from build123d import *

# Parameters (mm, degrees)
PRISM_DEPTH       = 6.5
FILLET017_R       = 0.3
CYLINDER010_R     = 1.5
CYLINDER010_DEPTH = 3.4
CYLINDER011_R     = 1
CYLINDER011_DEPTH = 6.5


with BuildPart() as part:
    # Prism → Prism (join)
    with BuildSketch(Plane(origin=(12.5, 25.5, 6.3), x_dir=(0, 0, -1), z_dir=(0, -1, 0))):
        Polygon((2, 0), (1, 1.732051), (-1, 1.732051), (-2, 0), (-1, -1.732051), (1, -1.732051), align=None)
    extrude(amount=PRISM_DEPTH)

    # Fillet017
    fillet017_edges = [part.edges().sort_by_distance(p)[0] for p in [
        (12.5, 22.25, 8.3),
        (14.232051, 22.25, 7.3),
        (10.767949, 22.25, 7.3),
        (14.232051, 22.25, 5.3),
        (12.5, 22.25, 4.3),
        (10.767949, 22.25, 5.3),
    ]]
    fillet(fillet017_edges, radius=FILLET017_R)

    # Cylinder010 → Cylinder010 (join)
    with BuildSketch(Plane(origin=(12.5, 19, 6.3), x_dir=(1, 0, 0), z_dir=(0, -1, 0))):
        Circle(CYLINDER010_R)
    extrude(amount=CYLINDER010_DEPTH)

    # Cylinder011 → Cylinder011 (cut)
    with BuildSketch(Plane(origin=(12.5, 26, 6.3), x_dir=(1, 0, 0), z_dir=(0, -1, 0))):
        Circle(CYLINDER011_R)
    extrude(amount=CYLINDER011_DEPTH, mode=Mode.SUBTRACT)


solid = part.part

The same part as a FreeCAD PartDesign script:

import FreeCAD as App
import Part
import Sketcher

V = App.Vector
Q = App.Units.Quantity


def edges_at(feature, points):
    """Names of the edges that pass closest to the given points."""
    edges = feature.Shape.Edges
    near = lambda p: min(range(len(edges)), key=lambda i: edges[i].distToShape(Part.Vertex(*p))[0])
    return sorted({f"Edge{near(p) + 1}" for p in points})

doc = App.newDocument("Part")
body = doc.addObject("PartDesign::Body", "Body")

# Sketch on XZ plane
sketch1 = body.newObject("Sketcher::SketchObject", "Sketch")
sketch1.AttachmentSupport = (doc.getObject("XZ_Plane"), [""])
sketch1.MapMode = "FlatFace"
sketch1.AttachmentOffset = App.Placement(V(0, 0, -25.5), App.Rotation())
sketch1.addGeometry([
    Part.LineSegment(V(12.5, 4.3, 0), V(14.2, 5.3, 0)),  # 0
    Part.LineSegment(V(14.2, 5.3, 0), V(14.2, 7.3, 0)),  # 1
    Part.LineSegment(V(14.2, 7.3, 0), V(12.5, 8.3, 0)),  # 2
    Part.LineSegment(V(12.5, 8.3, 0), V(10.8, 7.3, 0)),  # 3
    Part.LineSegment(V(10.8, 7.3, 0), V(10.8, 5.3, 0)),  # 4
    Part.LineSegment(V(10.8, 5.3, 0), V(12.5, 4.3, 0)),  # 5
], False)
sketch1.addConstraint([
    Sketcher.Constraint("Coincident", 0, 2, 1, 1),
    Sketcher.Constraint("Coincident", 1, 2, 2, 1),
    Sketcher.Constraint("Coincident", 2, 2, 3, 1),
    Sketcher.Constraint("Coincident", 3, 2, 4, 1),
    Sketcher.Constraint("Coincident", 4, 2, 5, 1),
    Sketcher.Constraint("Coincident", 5, 2, 0, 1),
    Sketcher.Constraint("Vertical", 1),
    Sketcher.Constraint("Vertical", 4),
    Sketcher.Constraint("Parallel", 0, 3),
    Sketcher.Constraint("Parallel", 2, 5),
    Sketcher.Constraint("Horizontal", 1, 2, 3, 2),
    Sketcher.Constraint("Horizontal", 0, 2, 4, 2),
    Sketcher.Constraint("Vertical", 2, 2, 5, 2),
    Sketcher.Constraint("DistanceY", 1, 1, 1, 2, Q("2 mm")),
    Sketcher.Constraint("Angle", 0, Q("29.999997 deg")),
    Sketcher.Constraint("Distance", 0, Q("2 mm")),
    Sketcher.Constraint("DistanceY", -1, 1, 0, 2, Q("5.3 mm")),
    Sketcher.Constraint("DistanceX", -1, 1, 2, 2, Q("12.5 mm")),
])
pad1 = body.newObject("PartDesign::Pad", "Pad")
pad1.Profile = sketch1
pad1.Length = 6.5
doc.recompute()

fillet = body.newObject("PartDesign::Fillet", "Fillet")
fillet.Base = (pad1, edges_at(pad1, [
    (12.5, 22.25, 8.3),
    (14.232, 22.25, 7.3),
    (10.768, 22.25, 7.3),
    (14.232, 22.25, 5.3),
    (12.5, 22.25, 4.3),
    (10.768, 22.25, 5.3),
]))
fillet.Radius = 0.3

# Sketch on XZ plane
sketch2 = body.newObject("Sketcher::SketchObject", "Sketch001")
sketch2.AttachmentSupport = (doc.getObject("XZ_Plane"), [""])
sketch2.MapMode = "FlatFace"
sketch2.AttachmentOffset = App.Placement(V(0, 0, -19), App.Rotation())
sketch2.addGeometry(Part.Circle(V(12.5, 6.3, 0), V(0, 0, 1), 1.5), False)
sketch2.addConstraint([
    Sketcher.Constraint("Diameter", 0, Q("3 mm")),
    Sketcher.Constraint("DistanceX", -1, 1, 0, 3, Q("12.5 mm")),
    Sketcher.Constraint("DistanceY", -1, 1, 0, 3, Q("6.3 mm")),
])
pad2 = body.newObject("PartDesign::Pad", "Pad001")
pad2.Profile = sketch2
pad2.Length = 3.4

# Sketch on XZ plane
sketch3 = body.newObject("Sketcher::SketchObject", "Sketch002")
sketch3.AttachmentSupport = (doc.getObject("XZ_Plane"), [""])
sketch3.MapMode = "FlatFace"
sketch3.AttachmentOffset = App.Placement(V(0, 0, -26), App.Rotation())
sketch3.addGeometry(Part.Circle(V(12.5, 6.3, 0), V(0, 0, 1), 1), False)
sketch3.addConstraint([
    Sketcher.Constraint("Diameter", 0, Q("2 mm")),
    Sketcher.Constraint("DistanceX", -1, 1, 0, 3, Q("12.5 mm")),
    Sketcher.Constraint("DistanceY", -1, 1, 0, 3, Q("6.3 mm")),
])
pocket1 = body.newObject("PartDesign::Pocket", "Pocket")
pocket1.Profile = sketch3
pocket1.Length = 6.5
pocket1.Reversed = True

doc.recompute()
